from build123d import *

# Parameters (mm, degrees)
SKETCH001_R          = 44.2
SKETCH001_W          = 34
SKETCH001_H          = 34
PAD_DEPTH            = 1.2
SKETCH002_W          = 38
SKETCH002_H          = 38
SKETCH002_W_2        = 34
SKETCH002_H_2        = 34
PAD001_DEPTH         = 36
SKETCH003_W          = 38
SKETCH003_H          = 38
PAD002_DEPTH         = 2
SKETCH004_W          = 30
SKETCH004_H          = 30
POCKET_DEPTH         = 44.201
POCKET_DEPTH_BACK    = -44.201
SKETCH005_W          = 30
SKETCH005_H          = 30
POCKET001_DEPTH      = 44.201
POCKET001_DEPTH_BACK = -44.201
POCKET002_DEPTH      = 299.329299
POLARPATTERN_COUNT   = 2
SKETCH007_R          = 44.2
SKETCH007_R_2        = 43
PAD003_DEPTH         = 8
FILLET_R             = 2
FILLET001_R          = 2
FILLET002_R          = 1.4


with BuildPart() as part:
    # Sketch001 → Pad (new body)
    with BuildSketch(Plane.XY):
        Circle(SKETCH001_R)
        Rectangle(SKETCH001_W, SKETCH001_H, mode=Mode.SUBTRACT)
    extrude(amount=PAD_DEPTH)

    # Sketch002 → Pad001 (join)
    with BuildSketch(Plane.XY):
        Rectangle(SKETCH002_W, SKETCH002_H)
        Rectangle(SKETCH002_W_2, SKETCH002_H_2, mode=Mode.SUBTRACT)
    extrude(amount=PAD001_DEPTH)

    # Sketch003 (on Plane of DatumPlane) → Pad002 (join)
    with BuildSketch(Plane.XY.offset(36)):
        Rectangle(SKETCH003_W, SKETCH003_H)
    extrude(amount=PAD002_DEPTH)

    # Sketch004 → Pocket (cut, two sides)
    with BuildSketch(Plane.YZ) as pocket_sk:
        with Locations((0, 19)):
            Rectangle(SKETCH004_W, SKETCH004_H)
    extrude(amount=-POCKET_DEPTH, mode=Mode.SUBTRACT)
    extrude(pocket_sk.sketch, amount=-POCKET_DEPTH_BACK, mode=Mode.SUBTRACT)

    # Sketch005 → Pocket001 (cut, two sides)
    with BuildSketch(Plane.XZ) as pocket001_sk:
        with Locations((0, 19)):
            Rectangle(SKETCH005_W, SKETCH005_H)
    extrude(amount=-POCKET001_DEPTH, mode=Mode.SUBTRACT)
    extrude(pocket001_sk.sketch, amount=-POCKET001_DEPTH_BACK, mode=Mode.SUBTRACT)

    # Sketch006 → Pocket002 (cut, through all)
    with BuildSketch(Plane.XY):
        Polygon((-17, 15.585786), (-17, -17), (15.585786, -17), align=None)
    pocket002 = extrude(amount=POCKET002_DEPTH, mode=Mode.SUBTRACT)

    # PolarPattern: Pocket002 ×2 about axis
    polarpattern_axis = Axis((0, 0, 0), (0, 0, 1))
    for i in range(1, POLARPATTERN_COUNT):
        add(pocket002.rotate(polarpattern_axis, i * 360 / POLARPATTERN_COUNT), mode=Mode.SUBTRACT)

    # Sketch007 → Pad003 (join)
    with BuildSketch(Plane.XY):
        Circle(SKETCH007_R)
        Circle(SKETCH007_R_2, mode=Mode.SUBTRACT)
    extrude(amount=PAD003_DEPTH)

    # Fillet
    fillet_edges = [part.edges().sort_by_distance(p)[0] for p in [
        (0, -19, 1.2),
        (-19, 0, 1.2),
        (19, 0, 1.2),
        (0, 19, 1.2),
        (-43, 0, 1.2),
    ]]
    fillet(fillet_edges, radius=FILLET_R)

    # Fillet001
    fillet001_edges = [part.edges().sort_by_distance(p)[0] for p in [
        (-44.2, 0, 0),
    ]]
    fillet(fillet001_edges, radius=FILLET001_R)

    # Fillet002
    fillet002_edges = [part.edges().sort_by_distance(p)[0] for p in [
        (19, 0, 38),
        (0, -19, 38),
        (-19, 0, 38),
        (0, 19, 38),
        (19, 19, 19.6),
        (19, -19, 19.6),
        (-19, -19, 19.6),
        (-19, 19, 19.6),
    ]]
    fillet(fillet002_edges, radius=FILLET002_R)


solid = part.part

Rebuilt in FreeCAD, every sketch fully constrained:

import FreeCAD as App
import Part
import Sketcher

V = App.Vector


def edges_at(feature, points):
    """Names of the edges that pass closest to the given points."""
    edges = feature.Shape.Edges
    near = lambda p: min(range(len(edges)), key=lambda i: edges[i].distToShape(Part.Vertex(*p))[0])
    return sorted({f"Edge{near(p) + 1}" for p in points})

doc = App.newDocument("Part")
body = doc.addObject("PartDesign::Body", "Body")

# Sketch on XY plane
sketch1 = body.newObject("Sketcher::SketchObject", "Sketch")
sketch1.AttachmentSupport = (doc.getObject("XY_Plane"), [""])
sketch1.MapMode = "FlatFace"
sketch1.addGeometry([
    Part.Circle(V(0, 0, 0), V(0, 0, 1), 44),  # 0
    Part.LineSegment(V(17, -17, 0), V(-17, -17, 0)),  # 1
    Part.LineSegment(V(-17, -17, 0), V(-17, 17, 0)),  # 2
    Part.LineSegment(V(-17, 17, 0), V(17, 17, 0)),  # 3
    Part.LineSegment(V(17, 17, 0), V(17, -17, 0)),  # 4
], False)
sketch1.addConstraint([
    Sketcher.Constraint("Coincident", 1, 2, 2, 1),
    Sketcher.Constraint("Coincident", 2, 2, 3, 1),
    Sketcher.Constraint("Coincident", 3, 2, 4, 1),
    Sketcher.Constraint("Coincident", 4, 2, 1, 1),
    Sketcher.Constraint("Horizontal", 1),
    Sketcher.Constraint("Vertical", 2),
    Sketcher.Constraint("Horizontal", 3),
    Sketcher.Constraint("Vertical", 4),
    Sketcher.Constraint("Coincident", 0, 3, -1, 1),
    Sketcher.Constraint("Symmetric", 1, 2, 3, 2, -1, 1),
    Sketcher.Constraint("Equal", 3, 2),
    Sketcher.Constraint("Diameter", 0, 88.4),
    Sketcher.Constraint("DistanceX", 1, 2, 1, 1, 34.0),
])
pad1 = body.newObject("PartDesign::Pad", "Pad")
pad1.Profile = sketch1
pad1.Length = 1.2

# Sketch on XY plane
sketch2 = body.newObject("Sketcher::SketchObject", "Sketch001")
sketch2.AttachmentSupport = (doc.getObject("XY_Plane"), [""])
sketch2.MapMode = "FlatFace"
sketch2.addGeometry([
    Part.LineSegment(V(-19, 19, 0), V(-19, -19, 0)),  # 0
    Part.LineSegment(V(-19, -19, 0), V(19, -19, 0)),  # 1
    Part.LineSegment(V(19, -19, 0), V(19, 19, 0)),  # 2
    Part.LineSegment(V(19, 19, 0), V(-19, 19, 0)),  # 3
    Part.LineSegment(V(17, -17, 0), V(-17, -17, 0)),  # 4
    Part.LineSegment(V(-17, -17, 0), V(-17, 17, 0)),  # 5
    Part.LineSegment(V(-17, 17, 0), V(17, 17, 0)),  # 6
    Part.LineSegment(V(17, 17, 0), V(17, -17, 0)),  # 7
], False)
sketch2.addConstraint([
    Sketcher.Constraint("Coincident", 0, 2, 1, 1),
    Sketcher.Constraint("Coincident", 1, 2, 2, 1),
    Sketcher.Constraint("Coincident", 2, 2, 3, 1),
    Sketcher.Constraint("Coincident", 3, 2, 0, 1),
    Sketcher.Constraint("Coincident", 4, 2, 5, 1),
    Sketcher.Constraint("Coincident", 5, 2, 6, 1),
    Sketcher.Constraint("Coincident", 6, 2, 7, 1),
    Sketcher.Constraint("Coincident", 7, 2, 4, 1),
    Sketcher.Constraint("Vertical", 0),
    Sketcher.Constraint("Horizontal", 1),
    Sketcher.Constraint("Vertical", 2),
    Sketcher.Constraint("Horizontal", 3),
    Sketcher.Constraint("Horizontal", 4),
    Sketcher.Constraint("Vertical", 5),
    Sketcher.Constraint("Horizontal", 6),
    Sketcher.Constraint("Vertical", 7),
    Sketcher.Constraint("Symmetric", 0, 2, 2, 2, -1, 1),
    Sketcher.Constraint("Symmetric", 4, 2, 6, 2, -1, 1),
    Sketcher.Constraint("Equal", 3, 0),
    Sketcher.Constraint("Equal", 6, 5),
    Sketcher.Constraint("DistanceX", 1, 1, 1, 2, 38.0),
    Sketcher.Constraint("DistanceX", 4, 2, 4, 1, 34.0),
])
pad2 = body.newObject("PartDesign::Pad", "Pad001")
pad2.Profile = sketch2
pad2.Length = 36

# Sketch on XY plane
sketch3 = body.newObject("Sketcher::SketchObject", "Sketch002")
sketch3.AttachmentSupport = (doc.getObject("XY_Plane"), [""])
sketch3.MapMode = "FlatFace"
sketch3.AttachmentOffset = App.Placement(V(0, 0, 36), App.Rotation())
sketch3.addGeometry([
    Part.LineSegment(V(-19, 19, 0), V(-19, -19, 0)),
    Part.LineSegment(V(-19, -19, 0), V(19, -19, 0)),
    Part.LineSegment(V(19, -19, 0), V(19, 19, 0)),
    Part.LineSegment(V(19, 19, 0), V(-19, 19, 0)),
], False)
sketch3.addConstraint([
    Sketcher.Constraint("Coincident", 0, 2, 1, 1),
    Sketcher.Constraint("Coincident", 1, 2, 2, 1),
    Sketcher.Constraint("Coincident", 2, 2, 3, 1),
    Sketcher.Constraint("Coincident", 3, 2, 0, 1),
    Sketcher.Constraint("Vertical", 0),
    Sketcher.Constraint("Horizontal", 1),
    Sketcher.Constraint("Vertical", 2),
    Sketcher.Constraint("Horizontal", 3),
    Sketcher.Constraint("Symmetric", 0, 2, 2, 2, -1, 1),
    Sketcher.Constraint("Equal", 3, 0),
    Sketcher.Constraint("DistanceX", 1, 1, 1, 2, 38.0),
])
pad3 = body.newObject("PartDesign::Pad", "Pad002")
pad3.Profile = sketch3
pad3.Length = 2

# Sketch on YZ plane
sketch4 = body.newObject("Sketcher::SketchObject", "Sketch003")
sketch4.AttachmentSupport = (doc.getObject("YZ_Plane"), [""])
sketch4.MapMode = "FlatFace"
sketch4.addGeometry([
    Part.LineSegment(V(-15, 34, 0), V(-15, 4, 0)),
    Part.LineSegment(V(-15, 4, 0), V(15, 4, 0)),
    Part.LineSegment(V(15, 4, 0), V(15, 34, 0)),
    Part.LineSegment(V(15, 34, 0), V(-15, 34, 0)),
], False)
sketch4.addConstraint([
    Sketcher.Constraint("Coincident", 0, 2, 1, 1),
    Sketcher.Constraint("Coincident", 1, 2, 2, 1),
    Sketcher.Constraint("Coincident", 2, 2, 3, 1),
    Sketcher.Constraint("Coincident", 3, 2, 0, 1),
    Sketcher.Constraint("Vertical", 0),
    Sketcher.Constraint("Horizontal", 1),
    Sketcher.Constraint("Vertical", 2),
    Sketcher.Constraint("Horizontal", 3),
    Sketcher.Constraint("Equal", 3, 0),
    Sketcher.Constraint("DistanceX", 1, 1, 1, 2, 30.0),
    Sketcher.Constraint("DistanceX", 0, 2, -1, 1, 15.0),
    Sketcher.Constraint("DistanceY", -1, 1, 0, 2, 4.0),
])
pocket1 = body.newObject("PartDesign::Pocket", "Pocket")
pocket1.Profile = sketch4
pocket1.Type = "ThroughAll"
pocket1.Midplane = True

# Sketch on XZ plane
sketch5 = body.newObject("Sketcher::SketchObject", "Sketch004")
sketch5.AttachmentSupport = (doc.getObject("XZ_Plane"), [""])
sketch5.MapMode = "FlatFace"
sketch5.addGeometry([
    Part.LineSegment(V(-15, 34, 0), V(-15, 4, 0)),
    Part.LineSegment(V(-15, 4, 0), V(15, 4, 0)),
    Part.LineSegment(V(15, 4, 0), V(15, 34, 0)),
    Part.LineSegment(V(15, 34, 0), V(-15, 34, 0)),
], False)
sketch5.addConstraint([
    Sketcher.Constraint("Coincident", 0, 2, 1, 1),
    Sketcher.Constraint("Coincident", 1, 2, 2, 1),
    Sketcher.Constraint("Coincident", 2, 2, 3, 1),
    Sketcher.Constraint("Coincident", 3, 2, 0, 1),
    Sketcher.Constraint("Vertical", 0),
    Sketcher.Constraint("Horizontal", 1),
    Sketcher.Constraint("Vertical", 2),
    Sketcher.Constraint("Horizontal", 3),
    Sketcher.Constraint("Equal", 3, 0),
    Sketcher.Constraint("DistanceX", 1, 1, 1, 2, 30.0),
    Sketcher.Constraint("DistanceX", 0, 2, -1, 1, 15.0),
    Sketcher.Constraint("DistanceY", -1, 1, 0, 2, 4.0),
])
pocket2 = body.newObject("PartDesign::Pocket", "Pocket001")
pocket2.Profile = sketch5
pocket2.Type = "ThroughAll"
pocket2.Midplane = True

# Sketch on XY plane
sketch6 = body.newObject("Sketcher::SketchObject", "Sketch005")
sketch6.AttachmentSupport = (doc.getObject("XY_Plane"), [""])
sketch6.MapMode = "FlatFace"
sketch6.addGeometry([
    Part.LineSegment(V(-17, 16, 0), V(-17, -17, 0)),
    Part.LineSegment(V(-17, -17, 0), V(16, -17, 0)),
    Part.LineSegment(V(16, -17, 0), V(-17, 16, 0)),
], False)
sketch6.addConstraint([
    Sketcher.Constraint("Coincident", 0, 2, 1, 1),
    Sketcher.Constraint("Coincident", 1, 2, 2, 1),
    Sketcher.Constraint("Coincident", 2, 2, 0, 1),
    Sketcher.Constraint("Vertical", 0),
    Sketcher.Constraint("Horizontal", 1),
    Sketcher.Constraint("Equal", 1, 0),
    Sketcher.Constraint("DistanceX", 0, 2, -1, 1, 17.0),
    Sketcher.Constraint("DistanceY", 0, 2, -1, 1, 17.0),
    Sketcher.Constraint("Distance", 2, 46.083261),
])
pocket3 = body.newObject("PartDesign::Pocket", "Pocket002")
pocket3.Profile = sketch6
pocket3.Type = "ThroughAll"
pocket3.Reversed = True
doc.recompute()

polarpattern = body.newObject("PartDesign::PolarPattern", "PolarPattern")
polarpattern.Originals = [pocket3]
polarpattern.Axis = (doc.getObject("Z_Axis"), [""])
polarpattern.Angle = 360
polarpattern.Occurrences = 2
body.Tip = polarpattern

# Sketch on XY plane
sketch7 = body.newObject("Sketcher::SketchObject", "Sketch006")
sketch7.AttachmentSupport = (doc.getObject("XY_Plane"), [""])
sketch7.MapMode = "FlatFace"
sketch7.addGeometry([
    Part.Circle(V(0, 0, 0), V(0, 0, 1), 44),
    Part.Circle(V(0, 0, 0), V(0, 0, 1), 43),
], False)
sketch7.addConstraint([
    Sketcher.Constraint("Coincident", 0, 3, -1, 1),
    Sketcher.Constraint("Coincident", 1, 3, -1, 1),
    Sketcher.Constraint("Diameter", 1, 86.0),
    Sketcher.Constraint("Diameter", 0, 88.4),
])
pad4 = body.newObject("PartDesign::Pad", "Pad003")
pad4.Profile = sketch7
pad4.Length = 8
doc.recompute()

fillet = body.newObject("PartDesign::Fillet", "Fillet")
fillet.Base = (pad4, edges_at(pad4, [
    (0, -19, 1.2),
    (-19, 0, 1.2),
    (19, 0, 1.2),
    (0, 19, 1.2),
    (-43, 0, 1.2),
]))
fillet.Radius = 2
doc.recompute()

fillet2 = body.newObject("PartDesign::Fillet", "Fillet001")
fillet2.Base = (fillet, edges_at(fillet, [(-44.2, 0, 0)]))
fillet2.Radius = 2
doc.recompute()

fillet3 = body.newObject("PartDesign::Fillet", "Fillet002")
fillet3.Base = (fillet2, edges_at(fillet2, [
    (19, 0, 38),
    (0, -19, 38),
    (-19, 0, 38),
    (0, 19, 38),
    (19, 19, 20.6),
    (19, -19, 20.6),
    (-19, -19, 20.6),
    (-19, 19, 20.6),
]))
fillet3.Radius = 1.4

doc.recompute()
